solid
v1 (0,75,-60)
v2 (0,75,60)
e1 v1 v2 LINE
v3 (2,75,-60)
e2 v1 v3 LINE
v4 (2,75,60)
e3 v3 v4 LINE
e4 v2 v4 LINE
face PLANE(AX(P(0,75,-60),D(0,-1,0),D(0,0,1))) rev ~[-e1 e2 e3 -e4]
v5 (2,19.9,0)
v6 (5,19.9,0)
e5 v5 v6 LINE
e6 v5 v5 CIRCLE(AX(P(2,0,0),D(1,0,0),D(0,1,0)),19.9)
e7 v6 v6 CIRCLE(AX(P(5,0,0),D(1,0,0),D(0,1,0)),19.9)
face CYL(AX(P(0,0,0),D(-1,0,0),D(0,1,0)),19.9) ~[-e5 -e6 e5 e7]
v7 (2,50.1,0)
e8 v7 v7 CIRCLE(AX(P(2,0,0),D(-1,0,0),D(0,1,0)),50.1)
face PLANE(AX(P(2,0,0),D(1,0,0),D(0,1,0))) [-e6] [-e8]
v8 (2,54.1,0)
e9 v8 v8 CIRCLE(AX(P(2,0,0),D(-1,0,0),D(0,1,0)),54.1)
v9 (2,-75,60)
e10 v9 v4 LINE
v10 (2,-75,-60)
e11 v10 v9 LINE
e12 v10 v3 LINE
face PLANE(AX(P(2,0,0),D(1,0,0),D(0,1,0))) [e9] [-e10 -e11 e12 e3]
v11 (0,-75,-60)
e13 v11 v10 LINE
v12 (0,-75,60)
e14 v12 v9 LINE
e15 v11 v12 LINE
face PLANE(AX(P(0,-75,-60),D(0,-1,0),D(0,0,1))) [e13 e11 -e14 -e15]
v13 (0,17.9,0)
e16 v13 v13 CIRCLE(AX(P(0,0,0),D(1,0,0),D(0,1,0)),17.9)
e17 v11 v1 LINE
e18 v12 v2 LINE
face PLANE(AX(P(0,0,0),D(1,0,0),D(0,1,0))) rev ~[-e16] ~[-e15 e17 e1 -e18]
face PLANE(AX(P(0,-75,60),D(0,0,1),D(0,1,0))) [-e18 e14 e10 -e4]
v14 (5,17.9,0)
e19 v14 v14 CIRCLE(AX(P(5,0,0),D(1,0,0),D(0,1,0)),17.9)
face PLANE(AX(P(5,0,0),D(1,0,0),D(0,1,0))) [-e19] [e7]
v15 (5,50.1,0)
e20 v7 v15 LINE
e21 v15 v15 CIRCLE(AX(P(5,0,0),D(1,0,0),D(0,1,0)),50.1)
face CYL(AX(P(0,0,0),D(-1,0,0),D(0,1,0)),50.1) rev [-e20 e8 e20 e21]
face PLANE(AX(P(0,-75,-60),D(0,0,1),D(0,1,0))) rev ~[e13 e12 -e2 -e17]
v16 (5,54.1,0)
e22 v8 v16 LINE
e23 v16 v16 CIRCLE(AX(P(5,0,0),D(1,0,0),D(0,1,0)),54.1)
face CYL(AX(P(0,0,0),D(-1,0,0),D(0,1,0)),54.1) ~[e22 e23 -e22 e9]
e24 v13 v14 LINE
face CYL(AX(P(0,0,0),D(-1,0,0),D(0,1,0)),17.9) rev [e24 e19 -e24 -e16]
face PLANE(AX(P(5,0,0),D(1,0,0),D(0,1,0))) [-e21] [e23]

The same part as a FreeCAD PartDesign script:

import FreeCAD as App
import Part
import Sketcher

V = App.Vector

doc = App.newDocument("Part")
body = doc.addObject("PartDesign::Body", "Body")

# Sketch on YZ plane
sketch1 = body.newObject("Sketcher::SketchObject", "Sketch")
sketch1.AttachmentSupport = (doc.getObject("YZ_Plane"), [""])
sketch1.MapMode = "FlatFace"
sketch1.addGeometry([
    Part.LineSegment(V(-75, 60, 0), V(-75, -60, 0)),  # 0
    Part.LineSegment(V(-75, -60, 0), V(75, -60, 0)),  # 1
    Part.LineSegment(V(75, -60, 0), V(75, 60, 0)),  # 2
    Part.LineSegment(V(75, 60, 0), V(-75, 60, 0)),  # 3
    Part.Circle(V(0, 0, 0), V(0, 0, 1), 19.9),  # 4
], False)
sketch1.addConstraint([
    Sketcher.Constraint("Coincident", 0, 2, 1, 1),
    Sketcher.Constraint("Coincident", 1, 2, 2, 1),
    Sketcher.Constraint("Coincident", 2, 2, 3, 1),
    Sketcher.Constraint("Coincident", 3, 2, 0, 1),
    Sketcher.Constraint("Vertical", 0),
    Sketcher.Constraint("Horizontal", 1),
    Sketcher.Constraint("Vertical", 2),
    Sketcher.Constraint("Horizontal", 3),
    Sketcher.Constraint("Coincident", 4, 3, -1, 1),
    Sketcher.Constraint("Symmetric", 0, 2, 2, 2, -1, 1),
    Sketcher.Constraint("Diameter", 4, 39.8),
    Sketcher.Constraint("DistanceX", 1, 1, 1, 2, 150.0),
    Sketcher.Constraint("DistanceY", 0, 2, 0, 1, 120.0),
])
pad1 = body.newObject("PartDesign::Pad", "Pad")
pad1.Profile = sketch1
pad1.Length = 2

# Sketch on YZ plane
sketch2 = body.newObject("Sketcher::SketchObject", "Sketch001")
sketch2.AttachmentSupport = (doc.getObject("YZ_Plane"), [""])
sketch2.MapMode = "FlatFace"
sketch2.addGeometry([
    Part.Circle(V(0, 0, 0), V(0, 0, 1), 19.9),
    Part.Circle(V(0, 0, 0), V(0, 0, 1), 17.9),
], False)
sketch2.addConstraint([
    Sketcher.Constraint("Coincident", 0, 3, -1, 1),
    Sketcher.Constraint("Coincident", 1, 3, -1, 1),
    Sketcher.Constraint("Diameter", 0, 39.8),
    Sketcher.Constraint("Diameter", 1, 35.8),
])
pad2 = body.newObject("PartDesign::Pad", "Pad001")
pad2.Profile = sketch2
pad2.Length = 5

# Sketch on YZ plane
sketch3 = body.newObject("Sketcher::SketchObject", "Sketch002")
sketch3.AttachmentSupport = (doc.getObject("YZ_Plane"), [""])
sketch3.MapMode = "FlatFace"
sketch3.addGeometry([
    Part.Circle(V(0, 0, 0), V(0, 0, 1), 54.1),
    Part.Circle(V(0, 0, 0), V(0, 0, 1), 50.1),
], False)
sketch3.addConstraint([
    Sketcher.Constraint("Coincident", 0, 3, -1, 1),
    Sketcher.Constraint("Coincident", 1, 3, -1, 1),
    Sketcher.Constraint("Diameter", 0, 108.2),
    Sketcher.Constraint("Diameter", 1, 100.2),
])
pad3 = body.newObject("PartDesign::Pad", "Pad002")
pad3.Profile = sketch3
pad3.Length = 5

doc.recompute()
